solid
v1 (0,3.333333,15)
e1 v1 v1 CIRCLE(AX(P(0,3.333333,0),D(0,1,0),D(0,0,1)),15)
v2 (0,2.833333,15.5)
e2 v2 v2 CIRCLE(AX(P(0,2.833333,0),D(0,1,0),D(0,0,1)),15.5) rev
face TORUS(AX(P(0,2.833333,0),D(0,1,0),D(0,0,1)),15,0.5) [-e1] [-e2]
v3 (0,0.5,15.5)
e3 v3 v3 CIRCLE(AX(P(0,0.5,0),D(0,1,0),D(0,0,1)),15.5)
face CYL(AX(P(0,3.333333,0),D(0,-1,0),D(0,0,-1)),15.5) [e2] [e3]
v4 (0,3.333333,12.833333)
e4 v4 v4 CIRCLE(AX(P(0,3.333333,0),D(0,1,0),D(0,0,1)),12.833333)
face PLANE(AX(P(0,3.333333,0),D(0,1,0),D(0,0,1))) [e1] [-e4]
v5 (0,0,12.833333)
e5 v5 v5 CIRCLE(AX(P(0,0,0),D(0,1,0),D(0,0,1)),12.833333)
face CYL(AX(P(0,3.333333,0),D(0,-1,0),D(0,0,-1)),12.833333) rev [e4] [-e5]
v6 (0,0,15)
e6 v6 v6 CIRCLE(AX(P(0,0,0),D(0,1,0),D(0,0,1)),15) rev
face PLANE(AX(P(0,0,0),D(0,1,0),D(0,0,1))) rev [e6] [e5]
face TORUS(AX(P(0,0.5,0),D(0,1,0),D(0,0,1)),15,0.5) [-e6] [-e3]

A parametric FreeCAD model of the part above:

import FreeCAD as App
import Part
import Sketcher
from FreeCAD import Vector
Q = App.Units.Quantity


def edges_at(feature, points):
    """Names of the edges that pass closest to the given points."""
    edges = feature.Shape.Edges
    near = lambda p: min(range(len(edges)), key=lambda i: edges[i].distToShape(Part.Vertex(*p))[0])
    return sorted({f"Edge{near(p) + 1}" for p in points})

doc = App.newDocument("Part")
body = doc.addObject("PartDesign::Body", "Body")

# Sketch on XZ plane
sketch1 = doc.addObject("Sketcher::SketchObject", "Sketch")
body.addObject(sketch1)
sketch1.AttachmentSupport = (doc.XZ_Plane, [""])
sketch1.MapMode = "FlatFace"
sketch1.addGeometry(Part.Circle(Vector(0, 0, 0), Vector(0, 0, 1), 16), False)
sketch1.addGeometry(Part.Circle(Vector(0, 0, 0), Vector(0, 0, 1), 13), False)
sketch1.addConstraint(Sketcher.Constraint("Coincident", 0, 3, -1, 1))
sketch1.addConstraint(Sketcher.Constraint("Coincident", 1, 3, -1, 1))
sketch1.addConstraint(Sketcher.Constraint("Diameter", 0, Q("31 mm")))
sketch1.addConstraint(Sketcher.Constraint("Diameter", 1, Q("25.666667 mm")))
pad1 = doc.addObject("PartDesign::Pad", "Pad")
body.addObject(pad1)
pad1.Profile = sketch1
pad1.Length = 3.333333
pad1.Reversed = True
doc.recompute()

fillet = doc.addObject("PartDesign::Fillet", "Fillet")
body.addObject(fillet)
fillet.Base = (pad1, edges_at(pad1, [(-15.5, 0, 0), (-15.5, 3.333, 0)]))
fillet.Radius = 0.5

doc.recompute()
